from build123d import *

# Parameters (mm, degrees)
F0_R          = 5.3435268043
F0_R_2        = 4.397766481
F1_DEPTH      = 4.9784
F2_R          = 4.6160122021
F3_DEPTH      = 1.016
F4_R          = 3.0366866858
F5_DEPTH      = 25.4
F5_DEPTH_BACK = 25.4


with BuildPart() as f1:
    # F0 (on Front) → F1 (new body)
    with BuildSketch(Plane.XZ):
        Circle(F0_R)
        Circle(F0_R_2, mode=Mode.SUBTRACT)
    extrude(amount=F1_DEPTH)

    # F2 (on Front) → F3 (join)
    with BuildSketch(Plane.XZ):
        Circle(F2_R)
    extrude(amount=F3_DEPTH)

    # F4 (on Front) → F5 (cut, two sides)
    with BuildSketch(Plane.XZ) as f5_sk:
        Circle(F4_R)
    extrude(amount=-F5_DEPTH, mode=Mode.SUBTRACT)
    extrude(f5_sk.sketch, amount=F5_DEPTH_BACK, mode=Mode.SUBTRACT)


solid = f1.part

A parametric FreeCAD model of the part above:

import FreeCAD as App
import Part
import Sketcher
from FreeCAD import Vector
Q = App.Units.Quantity

doc = App.newDocument("Part")
body = doc.addObject("PartDesign::Body", "Body")

# Sketch on XZ plane
sketch1 = body.newObject("Sketcher::SketchObject", "Sketch")
sketch1.AttachmentSupport = (doc.getObject("XZ_Plane"), [""])
sketch1.MapMode = "FlatFace"
sketch1.addGeometry([
    Part.Circle(Vector(0, 0, 0), Vector(0, 0, 1), 5.3),
    Part.Circle(Vector(0, 0, 0), Vector(0, 0, 1), 4.4),
], False)
sketch1.addConstraint([
    Sketcher.Constraint("Coincident", 0, 3, -1, 1),
    Sketcher.Constraint("Coincident", 1, 3, -1, 1),
    Sketcher.Constraint("Diameter", 0, 10.687054),
    Sketcher.Constraint("Diameter", 1, 8.795533),
])
pad1 = body.newObject("PartDesign::Pad", "Pad")
pad1.Profile = sketch1
pad1.Length = Q("0.196 in")

# Sketch on XZ plane
sketch2 = body.newObject("Sketcher::SketchObject", "Sketch001")
sketch2.AttachmentSupport = (doc.getObject("XZ_Plane"), [""])
sketch2.MapMode = "FlatFace"
sketch2.addGeometry(Part.Circle(Vector(0, 0, 0), Vector(0, 0, 1), 4.6), False)
sketch2.addConstraint([
    Sketcher.Constraint("Coincident", 0, 3, -1, 1),
    Sketcher.Constraint("Diameter", 0, 9.232024),
])
pad2 = body.newObject("PartDesign::Pad", "Pad001")
pad2.Profile = sketch2
pad2.Length = Q("0.04 in")

# Sketch on XZ plane
sketch3 = body.newObject("Sketcher::SketchObject", "Sketch002")
sketch3.AttachmentSupport = (doc.getObject("XZ_Plane"), [""])
sketch3.MapMode = "FlatFace"
sketch3.addGeometry(Part.Circle(Vector(0, 0, 0), Vector(0, 0, 1), 3), False)
sketch3.addConstraint([
    Sketcher.Constraint("Coincident", 0, 3, -1, 1),
    Sketcher.Constraint("Diameter", 0, 6.073373),
])
pocket1 = body.newObject("PartDesign::Pocket", "Pocket")
pocket1.Profile = sketch3
pocket1.Type = "ThroughAll"
pocket1.Midplane = True

doc.recompute()
